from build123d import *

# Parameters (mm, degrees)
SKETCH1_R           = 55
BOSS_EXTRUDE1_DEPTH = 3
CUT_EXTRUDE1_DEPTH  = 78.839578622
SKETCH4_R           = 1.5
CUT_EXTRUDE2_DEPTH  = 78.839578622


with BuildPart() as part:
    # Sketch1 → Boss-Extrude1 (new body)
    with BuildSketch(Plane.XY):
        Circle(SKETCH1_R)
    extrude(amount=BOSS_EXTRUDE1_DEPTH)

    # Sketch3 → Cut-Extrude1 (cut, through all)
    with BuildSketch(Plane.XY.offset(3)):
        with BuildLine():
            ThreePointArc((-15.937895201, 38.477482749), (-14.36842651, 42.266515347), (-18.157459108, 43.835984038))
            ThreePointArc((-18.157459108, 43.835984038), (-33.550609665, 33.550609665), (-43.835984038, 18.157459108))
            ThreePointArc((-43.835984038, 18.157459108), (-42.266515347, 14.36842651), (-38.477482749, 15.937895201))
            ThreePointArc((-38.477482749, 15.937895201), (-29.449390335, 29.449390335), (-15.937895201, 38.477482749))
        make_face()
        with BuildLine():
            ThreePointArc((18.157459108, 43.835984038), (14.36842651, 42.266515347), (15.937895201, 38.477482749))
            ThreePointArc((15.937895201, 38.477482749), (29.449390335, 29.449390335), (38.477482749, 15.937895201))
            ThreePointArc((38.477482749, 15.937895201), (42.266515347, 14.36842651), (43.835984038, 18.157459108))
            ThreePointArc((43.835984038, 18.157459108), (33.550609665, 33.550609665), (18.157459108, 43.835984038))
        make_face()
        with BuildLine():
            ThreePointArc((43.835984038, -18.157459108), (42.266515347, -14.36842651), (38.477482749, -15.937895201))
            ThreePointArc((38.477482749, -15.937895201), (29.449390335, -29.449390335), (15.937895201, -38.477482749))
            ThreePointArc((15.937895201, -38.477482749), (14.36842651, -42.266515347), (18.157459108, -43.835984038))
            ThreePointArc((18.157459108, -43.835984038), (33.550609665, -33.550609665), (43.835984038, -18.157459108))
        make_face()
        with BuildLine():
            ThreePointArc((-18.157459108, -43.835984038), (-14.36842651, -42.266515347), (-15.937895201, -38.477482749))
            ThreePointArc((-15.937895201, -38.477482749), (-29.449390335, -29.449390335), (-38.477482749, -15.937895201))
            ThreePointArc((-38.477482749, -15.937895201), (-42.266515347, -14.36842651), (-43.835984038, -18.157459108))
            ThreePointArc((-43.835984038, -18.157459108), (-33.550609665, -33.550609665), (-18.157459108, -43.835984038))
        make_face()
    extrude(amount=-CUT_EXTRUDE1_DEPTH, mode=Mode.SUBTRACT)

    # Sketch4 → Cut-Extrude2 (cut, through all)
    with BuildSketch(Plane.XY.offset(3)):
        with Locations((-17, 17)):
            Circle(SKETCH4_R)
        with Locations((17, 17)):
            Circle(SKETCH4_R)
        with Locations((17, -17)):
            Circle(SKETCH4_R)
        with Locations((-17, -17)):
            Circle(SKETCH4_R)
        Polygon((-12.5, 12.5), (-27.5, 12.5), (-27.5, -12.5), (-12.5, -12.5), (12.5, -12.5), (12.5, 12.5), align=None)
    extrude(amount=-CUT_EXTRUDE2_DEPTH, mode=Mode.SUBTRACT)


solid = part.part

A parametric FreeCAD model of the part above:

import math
import FreeCAD as App
import Part
import Sketcher


def add_polygon(sketch, points):
    """Adds a closed chain of lines whose ends are joined by coincident constraints."""
    first, n = sketch.GeometryCount, len(points)
    for a, b in zip(points, points[1:] + points[:1]):
        sketch.addGeometry(Part.LineSegment(App.Vector(*a, 0), App.Vector(*b, 0)), False)
    for i in range(n):
        sketch.addConstraint(Sketcher.Constraint("Coincident", first + i, 2, first + (i + 1) % n, 1))

doc = App.newDocument("Part")
body = doc.addObject("PartDesign::Body", "Body")

sketch1 = doc.addObject("Sketcher::SketchObject", "Sketch")
body.addObject(sketch1)
sketch1.AttachmentSupport = (doc.XY_Plane, [""])
sketch1.MapMode = "FlatFace"
sketch1.addGeometry(Part.Circle(App.Vector(0, 0, 0), App.Vector(0, 0, 1), 55), False)
sketch1.addConstraint([
    Sketcher.Constraint("Coincident", 0, 3, -1, 1),
    Sketcher.Constraint("Diameter", 0, 110.0),
])
pad1 = doc.addObject("PartDesign::Pad", "Pad")
body.addObject(pad1)
pad1.Profile = sketch1
pad1.Length = 3

sketch2 = doc.addObject("Sketcher::SketchObject", "Sketch001")
body.addObject(sketch2)
sketch2.AttachmentSupport = (doc.XY_Plane, [""])
sketch2.MapMode = "FlatFace"
sketch2.AttachmentOffset = App.Placement(App.Vector(0, 0, 3), App.Rotation())
sketch2.addGeometry([
    Part.ArcOfCircle(Part.Circle(App.Vector(-17, 41.2, 0), App.Vector(0, 0, 1), 2.9), math.radians(-68), math.radians(112)),
    Part.ArcOfCircle(Part.Circle(App.Vector(0, 0, 0), App.Vector(0, 0, 1), 47.4), math.radians(113), math.radians(157)),
    Part.ArcOfCircle(Part.Circle(App.Vector(-41.2, 17, 0), App.Vector(0, 0, 1), 2.9), math.radians(157), math.radians(338)),
    Part.ArcOfCircle(Part.Circle(App.Vector(0, 0, 0), App.Vector(0, 0, 1), 41.6), math.radians(112), math.radians(158)),
    Part.ArcOfCircle(Part.Circle(App.Vector(17, 41.2, 0), App.Vector(0, 0, 1), 2.9), math.radians(67), math.radians(248)),
    Part.ArcOfCircle(Part.Circle(App.Vector(0, 0, 0), App.Vector(0, 0, 1), 41.6), math.radians(22), math.radians(68)),
    Part.ArcOfCircle(Part.Circle(App.Vector(41.2, 17, 0), App.Vector(0, 0, 1), 2.9), math.radians(-158), math.radians(22)),
    Part.ArcOfCircle(Part.Circle(App.Vector(0, 0, 0), App.Vector(0, 0, 1), 47.4), math.radians(23), math.radians(67)),
    Part.ArcOfCircle(Part.Circle(App.Vector(41.2, -17, 0), App.Vector(0, 0, 1), 2.9), math.radians(-23), math.radians(158)),
    Part.ArcOfCircle(Part.Circle(App.Vector(0, 0, 0), App.Vector(0, 0, 1), 41.6), math.radians(-68), math.radians(-22)),
    Part.ArcOfCircle(Part.Circle(App.Vector(17, -41.2, 0), App.Vector(0, 0, 1), 2.9), math.radians(112), math.radians(292)),
    Part.ArcOfCircle(Part.Circle(App.Vector(0, 0, 0), App.Vector(0, 0, 1), 47.4), math.radians(-67), math.radians(-23)),
    Part.ArcOfCircle(Part.Circle(App.Vector(-17, -41.2, 0), App.Vector(0, 0, 1), 2.9), math.radians(-113), math.radians(68)),
    Part.ArcOfCircle(Part.Circle(App.Vector(0, 0, 0), App.Vector(0, 0, 1), 41.6), math.radians(-158), math.radians(-112)),
    Part.ArcOfCircle(Part.Circle(App.Vector(-41.2, -17, 0), App.Vector(0, 0, 1), 2.9), math.radians(22), math.radians(202)),
    Part.ArcOfCircle(Part.Circle(App.Vector(0, 0, 0), App.Vector(0, 0, 1), 47.4), math.radians(-157), math.radians(-113)),
], False)
sketch2.addConstraint([
    Sketcher.Constraint("Tangent", 0, 2, 1, 1),
    Sketcher.Constraint("Tangent", 1, 2, 2, 1),
    Sketcher.Constraint("Tangent", 2, 2, 3, 2),
    Sketcher.Constraint("Tangent", 3, 1, 0, 1),
    Sketcher.Constraint("Tangent", 4, 2, 5, 2),
    Sketcher.Constraint("Tangent", 5, 1, 6, 1),
    Sketcher.Constraint("Tangent", 6, 2, 7, 1),
    Sketcher.Constraint("Tangent", 7, 2, 4, 1),
    Sketcher.Constraint("Tangent", 8, 2, 9, 2),
    Sketcher.Constraint("Tangent", 9, 1, 10, 1),
    Sketcher.Constraint("Tangent", 10, 2, 11, 1),
    Sketcher.Constraint("Tangent", 11, 2, 8, 1),
    Sketcher.Constraint("Tangent", 12, 2, 13, 2),
    Sketcher.Constraint("Tangent", 13, 1, 14, 1),
    Sketcher.Constraint("Tangent", 14, 2, 15, 1),
    Sketcher.Constraint("Tangent", 15, 2, 12, 1),
    Sketcher.Constraint("Coincident", 1, 3, -1, 1),
    Sketcher.Constraint("Coincident", 3, 3, -1, 1),
    Sketcher.Constraint("Coincident", 5, 3, -1, 1),
    Sketcher.Constraint("Coincident", 7, 3, -1, 1),
    Sketcher.Constraint("Coincident", 9, 3, -1, 1),
    Sketcher.Constraint("Coincident", 11, 3, -1, 1),
    Sketcher.Constraint("Coincident", 13, 3, -1, 1),
    Sketcher.Constraint("Coincident", 15, 3, -1, 1),
    Sketcher.Constraint("Equal", 2, 4),
    Sketcher.Constraint("Equal", 3, 5),
    Sketcher.Constraint("Equal", 6, 8),
    Sketcher.Constraint("Equal", 5, 9),
    Sketcher.Constraint("Equal", 10, 12),
    Sketcher.Constraint("Equal", 9, 13),
    Sketcher.Constraint("Horizontal", 0, 3, 4, 3),
    Sketcher.Constraint("Horizontal", 2, 3, 6, 3),
    Sketcher.Constraint("Horizontal", 10, 3, 12, 3),
    Sketcher.Constraint("Horizontal", 8, 3, 14, 3),
    Sketcher.Constraint("Vertical", 6, 3, 8, 3),
    Sketcher.Constraint("Vertical", 4, 3, 10, 3),
    Sketcher.Constraint("Radius", 0, 2.9),
    Sketcher.Constraint("Radius", 1, 47.447727),
    Sketcher.Constraint("DistanceY", 4, 2, 0, 2, 5.358501),
    Sketcher.Constraint("DistanceX", 8, 2, 6, 2, 5.358501),
])
pocket1 = doc.addObject("PartDesign::Pocket", "Pocket")
body.addObject(pocket1)
pocket1.Profile = sketch2
pocket1.Type = "ThroughAll"

sketch3 = doc.addObject("Sketcher::SketchObject", "Sketch002")
body.addObject(sketch3)
sketch3.AttachmentSupport = (doc.XY_Plane, [""])
sketch3.MapMode = "FlatFace"
sketch3.AttachmentOffset = App.Placement(App.Vector(0, 0, 3), App.Rotation())
sketch3.addGeometry(Part.Circle(App.Vector(-17, 17, 0), App.Vector(0, 0, 1), 1.5), False)
sketch3.addGeometry(Part.Circle(App.Vector(17, 17, 0), App.Vector(0, 0, 1), 1.5), False)
sketch3.addGeometry(Part.Circle(App.Vector(17, -17, 0), App.Vector(0, 0, 1), 1.5), False)
sketch3.addGeometry(Part.Circle(App.Vector(-17, -17, 0), App.Vector(0, 0, 1), 1.5), False)
add_polygon(sketch3, [(-27.5, 12.5), (-27.5, -12.5), (12.5, -12.5), (12.5, 12.5)])
sketch3.addConstraint([
    Sketcher.Constraint("Vertical", 4),
    Sketcher.Constraint("Horizontal", 5),
    Sketcher.Constraint("Vertical", 6),
    Sketcher.Constraint("Horizontal", 7),
    Sketcher.Constraint("Equal", 0, 1),
    Sketcher.Constraint("Equal", 1, 2),
    Sketcher.Constraint("Equal", 2, 3),
    Sketcher.Constraint("Symmetric", 0, 3, 2, 3, -1, 1),
    Sketcher.Constraint("Symmetric", 1, 3, 3, 3, -1, 1),
    Sketcher.Constraint("Symmetric", 0, 3, 1, 3, -2),
    Sketcher.Constraint("Diameter", 0, 3.0),
    Sketcher.Constraint("DistanceX", 5, 1, 5, 2, 40.0),
    Sketcher.Constraint("DistanceY", 4, 2, 4, 1, 25.0),
    Sketcher.Constraint("DistanceX", 0, 3, -1, 1, 17.0),
    Sketcher.Constraint("DistanceY", -1, 1, 0, 3, 17.0),
    Sketcher.Constraint("DistanceX", 4, 2, -1, 1, 27.5),
    Sketcher.Constraint("DistanceY", 4, 2, -1, 1, 12.5),
])
pocket2 = doc.addObject("PartDesign::Pocket", "Pocket001")
body.addObject(pocket2)
pocket2.Profile = sketch3
pocket2.Type = "ThroughAll"

doc.recompute()
